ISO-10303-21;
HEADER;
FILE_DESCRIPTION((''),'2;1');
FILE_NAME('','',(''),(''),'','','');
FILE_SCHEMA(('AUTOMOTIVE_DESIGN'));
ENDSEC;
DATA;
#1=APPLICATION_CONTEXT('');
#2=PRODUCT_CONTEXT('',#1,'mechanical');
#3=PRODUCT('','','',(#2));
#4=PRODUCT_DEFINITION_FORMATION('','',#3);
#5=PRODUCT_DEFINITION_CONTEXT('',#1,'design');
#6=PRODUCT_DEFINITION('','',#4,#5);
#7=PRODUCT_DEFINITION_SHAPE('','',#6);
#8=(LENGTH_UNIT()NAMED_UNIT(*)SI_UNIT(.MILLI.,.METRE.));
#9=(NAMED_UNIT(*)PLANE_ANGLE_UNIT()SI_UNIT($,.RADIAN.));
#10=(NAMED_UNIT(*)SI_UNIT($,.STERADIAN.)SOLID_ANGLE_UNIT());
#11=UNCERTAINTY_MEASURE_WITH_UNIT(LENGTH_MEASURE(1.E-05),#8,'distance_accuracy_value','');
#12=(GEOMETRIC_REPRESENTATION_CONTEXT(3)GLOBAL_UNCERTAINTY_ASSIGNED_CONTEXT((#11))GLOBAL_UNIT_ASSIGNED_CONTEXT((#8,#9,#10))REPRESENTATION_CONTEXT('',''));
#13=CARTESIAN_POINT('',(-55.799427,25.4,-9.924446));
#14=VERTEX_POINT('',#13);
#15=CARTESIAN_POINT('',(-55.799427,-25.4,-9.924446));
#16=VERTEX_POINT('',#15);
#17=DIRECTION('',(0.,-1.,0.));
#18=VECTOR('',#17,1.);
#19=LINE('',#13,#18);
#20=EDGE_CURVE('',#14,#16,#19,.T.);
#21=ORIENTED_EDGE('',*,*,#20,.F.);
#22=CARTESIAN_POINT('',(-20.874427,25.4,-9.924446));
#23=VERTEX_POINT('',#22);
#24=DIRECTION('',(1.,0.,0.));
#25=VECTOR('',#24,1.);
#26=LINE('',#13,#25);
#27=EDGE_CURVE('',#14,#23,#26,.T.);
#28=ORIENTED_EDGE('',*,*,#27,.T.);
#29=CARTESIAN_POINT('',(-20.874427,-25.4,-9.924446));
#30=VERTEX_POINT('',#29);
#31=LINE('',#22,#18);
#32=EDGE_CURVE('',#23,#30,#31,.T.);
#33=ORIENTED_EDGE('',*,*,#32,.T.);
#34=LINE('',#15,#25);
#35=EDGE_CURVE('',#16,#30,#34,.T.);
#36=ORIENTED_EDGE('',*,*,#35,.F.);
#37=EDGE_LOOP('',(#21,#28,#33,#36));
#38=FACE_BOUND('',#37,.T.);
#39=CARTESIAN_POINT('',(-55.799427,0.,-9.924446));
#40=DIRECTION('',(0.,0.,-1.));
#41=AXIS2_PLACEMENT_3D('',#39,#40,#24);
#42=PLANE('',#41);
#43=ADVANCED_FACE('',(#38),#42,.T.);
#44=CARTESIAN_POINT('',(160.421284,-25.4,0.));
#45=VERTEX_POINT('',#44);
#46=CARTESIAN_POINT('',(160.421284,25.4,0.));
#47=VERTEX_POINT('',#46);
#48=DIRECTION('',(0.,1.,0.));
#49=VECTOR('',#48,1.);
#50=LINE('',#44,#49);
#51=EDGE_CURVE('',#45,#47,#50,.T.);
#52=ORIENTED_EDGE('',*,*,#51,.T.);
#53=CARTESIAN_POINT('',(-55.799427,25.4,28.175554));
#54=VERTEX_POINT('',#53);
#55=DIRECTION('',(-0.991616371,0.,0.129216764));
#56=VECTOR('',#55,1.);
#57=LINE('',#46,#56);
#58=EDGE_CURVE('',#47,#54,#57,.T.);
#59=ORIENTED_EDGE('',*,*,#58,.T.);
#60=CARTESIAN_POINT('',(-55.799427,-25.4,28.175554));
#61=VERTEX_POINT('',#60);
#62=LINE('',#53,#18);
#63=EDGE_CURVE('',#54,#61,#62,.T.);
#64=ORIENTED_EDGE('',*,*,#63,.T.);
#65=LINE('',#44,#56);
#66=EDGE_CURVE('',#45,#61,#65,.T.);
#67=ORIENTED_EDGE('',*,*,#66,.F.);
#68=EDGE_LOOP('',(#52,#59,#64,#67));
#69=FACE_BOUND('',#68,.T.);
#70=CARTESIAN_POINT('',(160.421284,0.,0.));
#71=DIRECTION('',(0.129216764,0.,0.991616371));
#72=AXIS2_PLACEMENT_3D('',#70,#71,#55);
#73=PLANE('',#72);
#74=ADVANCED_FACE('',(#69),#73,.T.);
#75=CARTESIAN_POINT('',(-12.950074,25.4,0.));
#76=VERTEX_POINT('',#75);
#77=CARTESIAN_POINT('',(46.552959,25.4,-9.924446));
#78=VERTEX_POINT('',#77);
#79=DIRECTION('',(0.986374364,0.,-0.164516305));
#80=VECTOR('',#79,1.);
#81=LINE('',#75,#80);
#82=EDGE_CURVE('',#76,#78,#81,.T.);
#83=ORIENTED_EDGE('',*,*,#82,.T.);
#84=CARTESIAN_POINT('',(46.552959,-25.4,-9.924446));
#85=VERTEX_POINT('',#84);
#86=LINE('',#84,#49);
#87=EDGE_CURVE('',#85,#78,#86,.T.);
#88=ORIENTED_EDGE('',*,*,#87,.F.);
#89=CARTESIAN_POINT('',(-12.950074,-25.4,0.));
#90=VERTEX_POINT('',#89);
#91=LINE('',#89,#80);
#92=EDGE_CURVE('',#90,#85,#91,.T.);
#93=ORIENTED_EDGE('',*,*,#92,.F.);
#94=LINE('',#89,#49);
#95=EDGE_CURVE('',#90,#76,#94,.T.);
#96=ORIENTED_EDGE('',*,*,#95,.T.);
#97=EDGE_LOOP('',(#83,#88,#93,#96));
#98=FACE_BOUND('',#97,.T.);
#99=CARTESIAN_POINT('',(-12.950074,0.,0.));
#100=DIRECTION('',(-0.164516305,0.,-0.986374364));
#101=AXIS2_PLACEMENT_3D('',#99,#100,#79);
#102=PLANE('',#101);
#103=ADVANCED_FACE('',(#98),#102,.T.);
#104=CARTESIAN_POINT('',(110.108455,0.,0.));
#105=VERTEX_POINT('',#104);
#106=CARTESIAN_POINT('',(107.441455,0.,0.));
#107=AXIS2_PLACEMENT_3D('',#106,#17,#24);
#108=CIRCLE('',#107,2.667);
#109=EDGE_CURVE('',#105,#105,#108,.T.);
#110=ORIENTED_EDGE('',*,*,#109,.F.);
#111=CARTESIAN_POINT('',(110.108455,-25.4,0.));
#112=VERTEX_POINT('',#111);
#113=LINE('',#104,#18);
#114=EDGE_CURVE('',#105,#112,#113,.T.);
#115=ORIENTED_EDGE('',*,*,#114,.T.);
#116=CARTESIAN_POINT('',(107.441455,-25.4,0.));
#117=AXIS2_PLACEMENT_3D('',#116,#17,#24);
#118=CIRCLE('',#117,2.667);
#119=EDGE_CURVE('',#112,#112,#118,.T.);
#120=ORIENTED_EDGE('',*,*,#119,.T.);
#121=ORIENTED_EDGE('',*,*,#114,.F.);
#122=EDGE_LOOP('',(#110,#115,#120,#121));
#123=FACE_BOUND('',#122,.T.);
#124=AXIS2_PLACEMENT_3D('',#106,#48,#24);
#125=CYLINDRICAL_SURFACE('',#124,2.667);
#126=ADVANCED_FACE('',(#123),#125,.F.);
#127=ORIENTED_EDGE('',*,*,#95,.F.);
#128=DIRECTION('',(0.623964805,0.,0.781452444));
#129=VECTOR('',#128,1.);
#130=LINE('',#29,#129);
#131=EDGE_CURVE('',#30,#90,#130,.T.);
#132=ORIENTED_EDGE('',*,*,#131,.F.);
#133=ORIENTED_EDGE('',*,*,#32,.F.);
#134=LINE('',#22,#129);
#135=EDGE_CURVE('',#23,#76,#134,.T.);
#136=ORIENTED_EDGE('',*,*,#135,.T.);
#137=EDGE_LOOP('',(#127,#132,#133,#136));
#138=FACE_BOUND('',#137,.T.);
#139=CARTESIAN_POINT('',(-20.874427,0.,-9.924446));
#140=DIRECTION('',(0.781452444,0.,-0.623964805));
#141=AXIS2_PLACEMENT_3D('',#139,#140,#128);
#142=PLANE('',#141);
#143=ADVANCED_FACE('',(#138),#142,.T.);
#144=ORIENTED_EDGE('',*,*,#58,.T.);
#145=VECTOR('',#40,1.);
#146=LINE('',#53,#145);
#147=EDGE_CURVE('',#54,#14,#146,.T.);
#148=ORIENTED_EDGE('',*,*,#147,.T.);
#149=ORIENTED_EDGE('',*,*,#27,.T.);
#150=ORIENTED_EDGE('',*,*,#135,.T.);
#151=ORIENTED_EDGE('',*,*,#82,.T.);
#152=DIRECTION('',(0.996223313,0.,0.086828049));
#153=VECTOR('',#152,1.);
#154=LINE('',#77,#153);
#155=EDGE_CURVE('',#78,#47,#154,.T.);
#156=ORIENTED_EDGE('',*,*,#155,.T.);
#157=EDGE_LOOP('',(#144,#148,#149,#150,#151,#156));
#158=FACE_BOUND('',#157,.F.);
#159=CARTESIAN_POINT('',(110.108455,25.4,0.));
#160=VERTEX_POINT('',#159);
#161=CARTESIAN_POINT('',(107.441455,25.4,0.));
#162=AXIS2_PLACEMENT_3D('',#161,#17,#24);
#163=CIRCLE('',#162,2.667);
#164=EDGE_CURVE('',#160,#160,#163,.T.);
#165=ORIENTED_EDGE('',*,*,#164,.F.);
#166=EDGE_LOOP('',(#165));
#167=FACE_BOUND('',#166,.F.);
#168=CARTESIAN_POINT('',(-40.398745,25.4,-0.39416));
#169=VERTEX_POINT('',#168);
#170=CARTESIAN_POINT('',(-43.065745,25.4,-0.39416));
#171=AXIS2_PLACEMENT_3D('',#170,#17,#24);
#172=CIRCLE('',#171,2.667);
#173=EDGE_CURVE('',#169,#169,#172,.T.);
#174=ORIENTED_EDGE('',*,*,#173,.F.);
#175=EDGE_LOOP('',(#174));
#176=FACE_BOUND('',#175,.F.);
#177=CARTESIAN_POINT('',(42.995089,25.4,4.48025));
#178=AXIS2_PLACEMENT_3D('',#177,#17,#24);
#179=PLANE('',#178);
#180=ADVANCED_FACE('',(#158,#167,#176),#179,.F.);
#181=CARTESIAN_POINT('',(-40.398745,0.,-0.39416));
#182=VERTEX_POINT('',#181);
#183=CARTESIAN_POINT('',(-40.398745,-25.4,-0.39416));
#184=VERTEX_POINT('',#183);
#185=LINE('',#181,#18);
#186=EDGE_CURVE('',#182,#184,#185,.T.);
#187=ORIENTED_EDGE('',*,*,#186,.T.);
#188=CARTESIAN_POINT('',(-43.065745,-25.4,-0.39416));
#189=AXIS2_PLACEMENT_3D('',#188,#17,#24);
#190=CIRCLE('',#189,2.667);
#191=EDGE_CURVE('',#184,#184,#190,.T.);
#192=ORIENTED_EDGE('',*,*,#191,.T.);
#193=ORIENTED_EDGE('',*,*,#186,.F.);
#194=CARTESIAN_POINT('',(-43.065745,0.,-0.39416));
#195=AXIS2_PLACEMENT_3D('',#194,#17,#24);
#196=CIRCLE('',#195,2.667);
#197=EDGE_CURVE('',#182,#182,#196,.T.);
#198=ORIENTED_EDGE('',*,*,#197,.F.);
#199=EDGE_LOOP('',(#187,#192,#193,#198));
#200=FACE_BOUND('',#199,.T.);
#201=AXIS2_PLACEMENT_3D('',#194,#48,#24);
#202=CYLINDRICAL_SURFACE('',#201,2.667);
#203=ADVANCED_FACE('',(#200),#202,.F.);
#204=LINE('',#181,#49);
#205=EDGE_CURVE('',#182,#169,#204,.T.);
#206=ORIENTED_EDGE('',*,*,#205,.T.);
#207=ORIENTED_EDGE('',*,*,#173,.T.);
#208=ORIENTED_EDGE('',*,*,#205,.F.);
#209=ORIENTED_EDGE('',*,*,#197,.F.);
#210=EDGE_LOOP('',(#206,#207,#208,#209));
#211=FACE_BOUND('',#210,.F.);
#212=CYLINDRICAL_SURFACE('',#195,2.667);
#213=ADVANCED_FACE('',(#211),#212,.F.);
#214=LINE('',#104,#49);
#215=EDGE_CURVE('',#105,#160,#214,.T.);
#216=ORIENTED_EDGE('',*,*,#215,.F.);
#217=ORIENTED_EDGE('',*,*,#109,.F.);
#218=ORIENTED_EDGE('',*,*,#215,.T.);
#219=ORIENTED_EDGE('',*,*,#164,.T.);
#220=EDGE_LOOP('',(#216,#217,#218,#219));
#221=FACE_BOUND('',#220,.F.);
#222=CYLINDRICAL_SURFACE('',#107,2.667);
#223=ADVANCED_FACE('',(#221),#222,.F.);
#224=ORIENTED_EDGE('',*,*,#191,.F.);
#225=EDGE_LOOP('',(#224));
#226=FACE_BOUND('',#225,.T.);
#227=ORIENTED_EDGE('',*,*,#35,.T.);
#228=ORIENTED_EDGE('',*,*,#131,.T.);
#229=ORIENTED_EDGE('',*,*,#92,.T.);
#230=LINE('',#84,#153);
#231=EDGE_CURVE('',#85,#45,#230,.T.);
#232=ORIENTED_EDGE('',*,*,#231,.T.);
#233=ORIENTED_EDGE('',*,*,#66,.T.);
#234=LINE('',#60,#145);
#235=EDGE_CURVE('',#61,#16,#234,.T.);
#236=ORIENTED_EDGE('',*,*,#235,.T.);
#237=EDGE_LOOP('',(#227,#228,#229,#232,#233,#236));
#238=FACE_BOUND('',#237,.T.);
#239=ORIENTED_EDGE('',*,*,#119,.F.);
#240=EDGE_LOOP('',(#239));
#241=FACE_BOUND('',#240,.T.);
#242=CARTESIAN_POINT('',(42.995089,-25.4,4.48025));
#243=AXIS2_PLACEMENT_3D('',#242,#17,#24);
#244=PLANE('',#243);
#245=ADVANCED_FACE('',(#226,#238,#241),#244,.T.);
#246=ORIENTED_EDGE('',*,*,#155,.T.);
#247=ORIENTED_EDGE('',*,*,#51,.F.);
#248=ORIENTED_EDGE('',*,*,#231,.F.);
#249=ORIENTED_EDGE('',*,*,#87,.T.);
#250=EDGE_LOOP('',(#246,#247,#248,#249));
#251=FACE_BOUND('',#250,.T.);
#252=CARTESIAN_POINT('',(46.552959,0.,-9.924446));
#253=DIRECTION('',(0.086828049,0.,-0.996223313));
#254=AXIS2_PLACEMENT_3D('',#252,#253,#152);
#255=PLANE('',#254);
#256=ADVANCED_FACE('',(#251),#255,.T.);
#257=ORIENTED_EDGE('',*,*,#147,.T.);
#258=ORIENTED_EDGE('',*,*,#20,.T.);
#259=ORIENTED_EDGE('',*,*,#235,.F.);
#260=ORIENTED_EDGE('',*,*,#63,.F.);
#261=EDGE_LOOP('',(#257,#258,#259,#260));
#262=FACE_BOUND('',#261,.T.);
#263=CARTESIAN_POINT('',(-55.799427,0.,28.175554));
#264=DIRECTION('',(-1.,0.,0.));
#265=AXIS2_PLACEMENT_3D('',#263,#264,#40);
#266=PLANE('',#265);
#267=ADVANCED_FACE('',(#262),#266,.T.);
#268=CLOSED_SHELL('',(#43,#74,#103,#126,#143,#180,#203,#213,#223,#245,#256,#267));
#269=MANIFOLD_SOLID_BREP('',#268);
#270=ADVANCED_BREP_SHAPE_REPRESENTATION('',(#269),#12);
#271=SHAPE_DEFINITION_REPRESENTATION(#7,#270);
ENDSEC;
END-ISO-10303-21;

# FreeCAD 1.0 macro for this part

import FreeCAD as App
import Part
import Sketcher
Q = App.Units.Quantity


def add_polygon(sketch, points):
    """Adds a closed chain of lines whose ends are joined by coincident constraints."""
    first, n = sketch.GeometryCount, len(points)
    for a, b in zip(points, points[1:] + points[:1]):
        sketch.addGeometry(Part.LineSegment(App.Vector(*a, 0), App.Vector(*b, 0)), False)
    for i in range(n):
        sketch.addConstraint(Sketcher.Constraint("Coincident", first + i, 2, first + (i + 1) % n, 1))

doc = App.newDocument("Part")
body = doc.addObject("PartDesign::Body", "Body")

# Sketch on XZ plane
sketch1 = body.newObject("Sketcher::SketchObject", "Sketch")
sketch1.AttachmentSupport = (doc.getObject("XZ_Plane"), [""])
sketch1.MapMode = "FlatFace"
add_polygon(sketch1, [(160.4, 0), (-55.8, 28.2), (-55.8, -9.9), (-20.9, -9.9), (-13, 0), (46.6, -9.9)])  # lines 0-5
sketch1.addGeometry(Part.Circle(App.Vector(-43.1, -0.4, 0), App.Vector(0, 0, 1), 2.7), False)  # 6
sketch1.addGeometry(Part.Circle(App.Vector(107.4, 0, 0), App.Vector(0, 0, 1), 2.7), False)  # 7
sketch1.addConstraint(Sketcher.Constraint("Vertical", 1))
sketch1.addConstraint(Sketcher.Constraint("Horizontal", 2))
sketch1.addConstraint(Sketcher.Constraint("Equal", 6, 7))
sketch1.addConstraint(Sketcher.Constraint("PointOnObject", 7, 3, -1))
sketch1.addConstraint(Sketcher.Constraint("PointOnObject", 3, 2, -1))
sketch1.addConstraint(Sketcher.Constraint("PointOnObject", 5, 2, -1))
sketch1.addConstraint(Sketcher.Constraint("Horizontal", 2, 2, 4, 2))
sketch1.addConstraint(Sketcher.Constraint("Diameter", 6, Q("0.21 in")))
sketch1.addConstraint(Sketcher.Constraint("DistanceY", 1, 2, 1, 1, Q("1.5 in")))
sketch1.addConstraint(Sketcher.Constraint("Distance", 3, Q("0.5 in")))
sketch1.addConstraint(Sketcher.Constraint("Distance", 5, Q("4.5 in")))
sketch1.addConstraint(Sketcher.Constraint("DistanceX", 2, 1, 2, 2, Q("1.375 in")))
sketch1.addConstraint(Sketcher.Constraint("Distance", 4, Q("2.375 in")))
sketch1.addConstraint(Sketcher.Constraint("DistanceX", 6, 3, 7, 3, 150.5072))
sketch1.addConstraint(Sketcher.Constraint("Distance", 0, 218.048751))
sketch1.addConstraint(Sketcher.Constraint("DistanceY", 6, 3, -1, 1, 0.39416))
sketch1.addConstraint(Sketcher.Constraint("DistanceX", -1, 1, 4, 2, 46.552959))
sketch1.addConstraint(Sketcher.Constraint("DistanceX", 0, 2, 7, 3, 163.240882))
pad1 = body.newObject("PartDesign::Pad", "Pad")
pad1.Profile = sketch1
pad1.Type = "TwoLengths"
pad1.Length = Q("1 in")
pad1.Length2 = Q("1 in")

doc.recompute()
